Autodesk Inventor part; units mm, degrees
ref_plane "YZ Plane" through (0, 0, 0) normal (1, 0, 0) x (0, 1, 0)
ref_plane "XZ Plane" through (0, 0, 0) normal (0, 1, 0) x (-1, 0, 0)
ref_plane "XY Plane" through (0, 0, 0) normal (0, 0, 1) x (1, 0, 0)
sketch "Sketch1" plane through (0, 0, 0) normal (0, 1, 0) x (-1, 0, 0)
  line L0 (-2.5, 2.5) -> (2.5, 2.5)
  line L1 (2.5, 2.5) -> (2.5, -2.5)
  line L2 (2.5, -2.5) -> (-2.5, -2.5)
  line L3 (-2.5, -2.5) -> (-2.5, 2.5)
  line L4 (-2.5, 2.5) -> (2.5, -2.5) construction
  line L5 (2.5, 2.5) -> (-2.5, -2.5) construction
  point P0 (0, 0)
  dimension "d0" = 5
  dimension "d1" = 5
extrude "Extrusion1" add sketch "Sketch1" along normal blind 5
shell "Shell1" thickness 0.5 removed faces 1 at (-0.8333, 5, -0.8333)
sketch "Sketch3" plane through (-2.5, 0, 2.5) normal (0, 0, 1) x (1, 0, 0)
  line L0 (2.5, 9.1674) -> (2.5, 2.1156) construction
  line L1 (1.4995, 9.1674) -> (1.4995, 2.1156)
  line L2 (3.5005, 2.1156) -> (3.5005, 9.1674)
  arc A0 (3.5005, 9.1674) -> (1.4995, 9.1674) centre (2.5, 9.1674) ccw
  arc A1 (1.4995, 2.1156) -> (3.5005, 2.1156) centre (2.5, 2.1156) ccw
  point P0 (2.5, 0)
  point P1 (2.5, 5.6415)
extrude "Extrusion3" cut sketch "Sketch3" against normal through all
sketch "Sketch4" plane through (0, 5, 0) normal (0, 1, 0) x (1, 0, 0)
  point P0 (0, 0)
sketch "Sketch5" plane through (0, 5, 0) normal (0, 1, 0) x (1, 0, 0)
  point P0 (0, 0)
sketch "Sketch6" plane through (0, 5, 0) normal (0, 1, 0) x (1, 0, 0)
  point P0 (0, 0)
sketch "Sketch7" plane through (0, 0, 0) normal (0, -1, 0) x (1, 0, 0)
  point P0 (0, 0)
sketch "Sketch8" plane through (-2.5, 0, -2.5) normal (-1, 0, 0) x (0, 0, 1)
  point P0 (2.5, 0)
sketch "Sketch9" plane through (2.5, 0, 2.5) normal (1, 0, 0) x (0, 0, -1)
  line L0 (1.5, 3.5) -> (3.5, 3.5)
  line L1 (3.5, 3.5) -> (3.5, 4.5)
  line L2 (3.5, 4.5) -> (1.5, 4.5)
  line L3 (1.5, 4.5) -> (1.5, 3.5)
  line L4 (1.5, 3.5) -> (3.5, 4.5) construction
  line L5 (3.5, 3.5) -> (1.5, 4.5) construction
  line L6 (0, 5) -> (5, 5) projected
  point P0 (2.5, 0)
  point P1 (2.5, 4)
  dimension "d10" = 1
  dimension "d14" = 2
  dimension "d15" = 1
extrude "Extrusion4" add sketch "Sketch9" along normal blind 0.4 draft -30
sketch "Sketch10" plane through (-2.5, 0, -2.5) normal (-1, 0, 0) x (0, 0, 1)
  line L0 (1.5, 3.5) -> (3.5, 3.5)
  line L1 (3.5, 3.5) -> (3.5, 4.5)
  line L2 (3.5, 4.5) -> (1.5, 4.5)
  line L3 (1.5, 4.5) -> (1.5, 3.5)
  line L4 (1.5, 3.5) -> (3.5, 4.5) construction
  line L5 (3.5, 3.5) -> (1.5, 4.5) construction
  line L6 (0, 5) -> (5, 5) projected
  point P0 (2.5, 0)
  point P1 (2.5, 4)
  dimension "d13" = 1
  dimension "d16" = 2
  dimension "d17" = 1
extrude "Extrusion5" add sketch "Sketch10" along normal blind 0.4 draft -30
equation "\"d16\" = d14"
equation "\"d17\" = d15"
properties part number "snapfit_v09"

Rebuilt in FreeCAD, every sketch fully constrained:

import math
import FreeCAD as App
import Part
import Sketcher
from FreeCAD import Vector


def faces_at(feature, points):
    """Names of the faces that lie closest to the given points."""
    faces = feature.Shape.Faces
    near = lambda p: min(range(len(faces)), key=lambda i: faces[i].distToShape(Part.Vertex(*p))[0])
    return sorted({f"Face{near(p) + 1}" for p in points})


def add_polygon(sketch, points):
    """Adds a closed chain of lines whose ends are joined by coincident constraints."""
    first, n = sketch.GeometryCount, len(points)
    for a, b in zip(points, points[1:] + points[:1]):
        sketch.addGeometry(Part.LineSegment(App.Vector(*a, 0), App.Vector(*b, 0)), False)
    for i in range(n):
        sketch.addConstraint(Sketcher.Constraint("Coincident", first + i, 2, first + (i + 1) % n, 1))

doc = App.newDocument("Part")
body = doc.addObject("PartDesign::Body", "Body")

sketch1 = doc.addObject("Sketcher::SketchObject", "Sketch")
body.addObject(sketch1)
sketch1.AttachmentSupport = (doc.XZ_Plane, [""])
sketch1.MapMode = "FlatFace"
add_polygon(sketch1, [(-2, 2), (2, 2), (2, -2), (-2, -2)])
sketch1.addConstraint(Sketcher.Constraint("Horizontal", 0))
sketch1.addConstraint(Sketcher.Constraint("Vertical", 1))
sketch1.addConstraint(Sketcher.Constraint("Horizontal", 2))
sketch1.addConstraint(Sketcher.Constraint("Vertical", 3))
sketch1.addConstraint(Sketcher.Constraint("Symmetric", 0, 2, 2, 2, -1, 1))
sketch1.addConstraint(Sketcher.Constraint("Equal", 2, 1))
sketch1.addConstraint(Sketcher.Constraint("DistanceX", 0, 1, 0, 2, 5.0))
pad1 = doc.addObject("PartDesign::Pad", "Pad")
body.addObject(pad1)
pad1.Profile = sketch1
pad1.Length = 5
pad1.Reversed = True
doc.recompute()

thickness = doc.addObject("PartDesign::Thickness", "Thickness")
body.addObject(thickness)
thickness.Base = (pad1, faces_at(pad1, [(-0.833, 5, -0.833)]))
thickness.Value = 0.5
thickness.Reversed = True
thickness.Join = "Intersection"

sketch2 = doc.addObject("Sketcher::SketchObject", "Sketch001")
body.addObject(sketch2)
sketch2.AttachmentSupport = (doc.XY_Plane, [""])
sketch2.MapMode = "FlatFace"
sketch2.AttachmentOffset = App.Placement(Vector(0, 0, 2.5), App.Rotation())
sketch2.addGeometry(Part.ArcOfCircle(Part.Circle(Vector(0, 9.2, 0), Vector(0, 0, 1), 1), math.radians(0), math.radians(180)), False)
sketch2.addGeometry(Part.LineSegment(Vector(-1, 9.2, 0), Vector(-1, 2.1, 0)), False)
sketch2.addGeometry(Part.ArcOfCircle(Part.Circle(Vector(0, 2.1, 0), Vector(0, 0, 1), 1), math.radians(180), math.radians(360)), False)
sketch2.addGeometry(Part.LineSegment(Vector(1, 2.1, 0), Vector(1, 9.2, 0)), False)
sketch2.addConstraint(Sketcher.Constraint("Tangent", 0, 2, 1, 1))
sketch2.addConstraint(Sketcher.Constraint("Tangent", 1, 2, 2, 1))
sketch2.addConstraint(Sketcher.Constraint("Tangent", 2, 2, 3, 1))
sketch2.addConstraint(Sketcher.Constraint("Tangent", 3, 2, 0, 1))
sketch2.addConstraint(Sketcher.Constraint("Vertical", 1))
sketch2.addConstraint(Sketcher.Constraint("Vertical", 3))
sketch2.addConstraint(Sketcher.Constraint("PointOnObject", 0, 3, -2))
sketch2.addConstraint(Sketcher.Constraint("Radius", 0, 1.0005))
sketch2.addConstraint(Sketcher.Constraint("DistanceY", 1, 2, 1, 1, 7.0518))
sketch2.addConstraint(Sketcher.Constraint("DistanceY", -1, 1, 0, 3, 9.1674))
pocket1 = doc.addObject("PartDesign::Pocket", "Pocket")
body.addObject(pocket1)
pocket1.Profile = sketch2
pocket1.Type = "ThroughAll"

sketch3 = doc.addObject("Sketcher::SketchObject", "Sketch002")
body.addObject(sketch3)
sketch3.AttachmentSupport = (doc.YZ_Plane, [""])
sketch3.MapMode = "FlatFace"
sketch3.AttachmentOffset = App.Placement(Vector(0, 0, 2.5), App.Rotation())
add_polygon(sketch3, [(4.5, 1), (3.5, 1), (3.5, -1), (4.5, -1)])
sketch3.addConstraint(Sketcher.Constraint("Horizontal", 0))
sketch3.addConstraint(Sketcher.Constraint("Vertical", 1))
sketch3.addConstraint(Sketcher.Constraint("Horizontal", 2))
sketch3.addConstraint(Sketcher.Constraint("Vertical", 3))
sketch3.addConstraint(Sketcher.Constraint("DistanceX", 0, 2, 0, 1, 1.0))
sketch3.addConstraint(Sketcher.Constraint("DistanceY", 1, 2, 1, 1, 2.0))
sketch3.addConstraint(Sketcher.Constraint("DistanceY", -1, 1, 0, 2, 1.0))
sketch3.addConstraint(Sketcher.Constraint("DistanceX", -1, 1, 0, 2, 3.5))
pad2 = doc.addObject("PartDesign::Pad", "Pad001")
body.addObject(pad2)
pad2.Profile = sketch3
pad2.Length = 0.4
pad2.TaperAngle = -30

sketch4 = doc.addObject("Sketcher::SketchObject", "Sketch003")
body.addObject(sketch4)
sketch4.AttachmentSupport = (doc.YZ_Plane, [""])
sketch4.MapMode = "FlatFace"
sketch4.AttachmentOffset = App.Placement(Vector(0, 0, -2.5), App.Rotation())
add_polygon(sketch4, [(4.5, -1), (3.5, -1), (3.5, 1), (4.5, 1)])
sketch4.addConstraint(Sketcher.Constraint("Horizontal", 0))
sketch4.addConstraint(Sketcher.Constraint("Vertical", 1))
sketch4.addConstraint(Sketcher.Constraint("Horizontal", 2))
sketch4.addConstraint(Sketcher.Constraint("Vertical", 3))
sketch4.addConstraint(Sketcher.Constraint("DistanceX", 0, 2, 0, 1, 1.0))
sketch4.addConstraint(Sketcher.Constraint("DistanceY", 1, 1, 1, 2, 2.0))
sketch4.addConstraint(Sketcher.Constraint("DistanceY", 0, 2, -1, 1, 1.0))
sketch4.addConstraint(Sketcher.Constraint("DistanceX", -1, 1, 0, 2, 3.5))
pad3 = doc.addObject("PartDesign::Pad", "Pad002")
body.addObject(pad3)
pad3.Profile = sketch4
pad3.Length = 0.4
pad3.Reversed = True
pad3.TaperAngle = -30

doc.recompute()
